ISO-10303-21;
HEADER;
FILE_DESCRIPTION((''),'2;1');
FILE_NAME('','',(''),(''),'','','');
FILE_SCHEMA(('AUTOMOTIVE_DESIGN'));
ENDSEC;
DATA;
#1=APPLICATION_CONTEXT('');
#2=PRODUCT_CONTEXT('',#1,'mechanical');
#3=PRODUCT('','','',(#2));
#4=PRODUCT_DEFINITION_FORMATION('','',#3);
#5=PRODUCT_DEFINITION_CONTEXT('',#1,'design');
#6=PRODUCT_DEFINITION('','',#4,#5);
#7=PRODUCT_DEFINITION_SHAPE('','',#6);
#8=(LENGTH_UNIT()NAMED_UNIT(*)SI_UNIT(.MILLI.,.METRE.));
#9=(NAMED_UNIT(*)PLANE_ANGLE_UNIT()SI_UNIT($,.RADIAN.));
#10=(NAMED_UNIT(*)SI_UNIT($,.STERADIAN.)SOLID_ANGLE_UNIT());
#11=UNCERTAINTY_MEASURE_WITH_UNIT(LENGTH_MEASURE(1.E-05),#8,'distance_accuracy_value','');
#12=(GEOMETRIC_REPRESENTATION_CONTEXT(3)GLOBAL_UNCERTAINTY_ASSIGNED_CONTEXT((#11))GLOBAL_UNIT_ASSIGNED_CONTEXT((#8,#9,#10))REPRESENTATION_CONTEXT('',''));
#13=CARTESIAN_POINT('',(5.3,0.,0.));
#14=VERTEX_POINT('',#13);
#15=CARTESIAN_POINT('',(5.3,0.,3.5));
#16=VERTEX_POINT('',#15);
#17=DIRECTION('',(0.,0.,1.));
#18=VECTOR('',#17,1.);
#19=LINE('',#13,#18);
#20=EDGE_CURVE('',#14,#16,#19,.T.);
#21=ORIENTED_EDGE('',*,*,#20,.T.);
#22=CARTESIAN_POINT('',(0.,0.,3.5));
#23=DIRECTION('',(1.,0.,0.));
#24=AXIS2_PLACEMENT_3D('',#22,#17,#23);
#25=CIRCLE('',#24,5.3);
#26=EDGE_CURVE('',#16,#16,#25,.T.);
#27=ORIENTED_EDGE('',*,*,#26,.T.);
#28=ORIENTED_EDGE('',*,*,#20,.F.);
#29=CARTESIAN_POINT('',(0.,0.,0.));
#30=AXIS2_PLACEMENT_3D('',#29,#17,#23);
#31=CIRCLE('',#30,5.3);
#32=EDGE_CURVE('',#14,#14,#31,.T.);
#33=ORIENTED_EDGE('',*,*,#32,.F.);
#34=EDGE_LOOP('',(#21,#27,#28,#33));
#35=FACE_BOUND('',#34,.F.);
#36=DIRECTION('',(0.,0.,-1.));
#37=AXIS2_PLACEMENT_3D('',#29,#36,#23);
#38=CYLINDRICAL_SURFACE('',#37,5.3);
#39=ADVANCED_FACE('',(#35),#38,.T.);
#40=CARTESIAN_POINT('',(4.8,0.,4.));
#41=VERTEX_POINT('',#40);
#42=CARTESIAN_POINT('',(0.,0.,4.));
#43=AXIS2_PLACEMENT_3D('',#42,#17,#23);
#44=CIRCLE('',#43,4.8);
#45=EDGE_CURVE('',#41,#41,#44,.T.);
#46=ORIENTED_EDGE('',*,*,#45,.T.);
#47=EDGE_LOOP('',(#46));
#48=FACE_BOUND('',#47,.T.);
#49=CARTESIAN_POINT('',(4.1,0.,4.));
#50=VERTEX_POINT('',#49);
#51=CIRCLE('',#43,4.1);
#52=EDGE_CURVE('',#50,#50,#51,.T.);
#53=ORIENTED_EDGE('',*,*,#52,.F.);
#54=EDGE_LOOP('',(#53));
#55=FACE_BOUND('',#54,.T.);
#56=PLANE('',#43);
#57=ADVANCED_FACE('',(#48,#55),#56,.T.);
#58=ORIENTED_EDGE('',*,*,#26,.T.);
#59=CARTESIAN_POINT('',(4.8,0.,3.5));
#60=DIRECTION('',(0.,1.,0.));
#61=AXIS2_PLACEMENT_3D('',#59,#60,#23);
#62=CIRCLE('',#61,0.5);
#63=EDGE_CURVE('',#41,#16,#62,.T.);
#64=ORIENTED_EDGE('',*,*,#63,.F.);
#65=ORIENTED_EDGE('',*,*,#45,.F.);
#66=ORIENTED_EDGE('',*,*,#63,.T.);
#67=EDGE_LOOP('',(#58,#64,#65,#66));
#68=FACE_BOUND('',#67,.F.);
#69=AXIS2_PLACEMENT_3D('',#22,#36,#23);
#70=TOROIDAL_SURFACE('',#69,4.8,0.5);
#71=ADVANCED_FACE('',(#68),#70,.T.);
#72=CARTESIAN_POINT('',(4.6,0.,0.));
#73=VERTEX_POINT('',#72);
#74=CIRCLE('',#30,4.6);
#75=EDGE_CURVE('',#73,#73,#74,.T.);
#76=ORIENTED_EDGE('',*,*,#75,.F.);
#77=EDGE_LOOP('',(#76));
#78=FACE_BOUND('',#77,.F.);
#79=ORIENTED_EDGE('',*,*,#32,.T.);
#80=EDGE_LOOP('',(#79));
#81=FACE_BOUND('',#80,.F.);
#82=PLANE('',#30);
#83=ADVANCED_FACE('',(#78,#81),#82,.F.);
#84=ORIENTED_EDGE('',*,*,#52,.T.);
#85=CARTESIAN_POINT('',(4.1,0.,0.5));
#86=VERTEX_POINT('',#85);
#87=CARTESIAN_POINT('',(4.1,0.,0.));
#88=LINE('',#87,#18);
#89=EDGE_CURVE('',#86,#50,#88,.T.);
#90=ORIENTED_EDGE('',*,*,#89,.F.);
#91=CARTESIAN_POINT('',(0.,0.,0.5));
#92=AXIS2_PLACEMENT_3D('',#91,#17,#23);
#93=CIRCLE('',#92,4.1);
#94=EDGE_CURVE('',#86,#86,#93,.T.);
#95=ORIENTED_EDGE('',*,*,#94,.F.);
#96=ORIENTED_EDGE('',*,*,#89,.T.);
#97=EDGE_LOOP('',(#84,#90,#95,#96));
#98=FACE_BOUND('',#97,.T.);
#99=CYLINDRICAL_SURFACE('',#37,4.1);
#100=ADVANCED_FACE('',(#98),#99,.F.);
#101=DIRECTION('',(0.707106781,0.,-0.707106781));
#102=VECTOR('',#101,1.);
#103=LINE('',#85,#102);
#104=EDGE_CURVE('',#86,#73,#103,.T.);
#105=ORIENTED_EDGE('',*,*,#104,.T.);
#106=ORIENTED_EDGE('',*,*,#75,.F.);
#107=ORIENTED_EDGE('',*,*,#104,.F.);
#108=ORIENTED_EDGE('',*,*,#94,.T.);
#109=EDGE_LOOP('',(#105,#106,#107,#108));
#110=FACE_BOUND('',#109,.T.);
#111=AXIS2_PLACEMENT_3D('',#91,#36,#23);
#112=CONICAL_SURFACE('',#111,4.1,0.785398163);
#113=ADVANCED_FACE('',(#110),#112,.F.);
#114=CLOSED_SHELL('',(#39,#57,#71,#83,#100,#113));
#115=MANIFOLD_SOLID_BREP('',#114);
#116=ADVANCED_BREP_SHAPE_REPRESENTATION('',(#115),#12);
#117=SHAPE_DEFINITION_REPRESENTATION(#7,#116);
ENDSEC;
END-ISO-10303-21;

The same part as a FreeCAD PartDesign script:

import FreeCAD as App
import Part
import Sketcher
Q = App.Units.Quantity


def edges_at(feature, points):
    """Names of the edges that pass closest to the given points."""
    edges = feature.Shape.Edges
    near = lambda p: min(range(len(edges)), key=lambda i: edges[i].distToShape(Part.Vertex(*p))[0])
    return sorted({f"Edge{near(p) + 1}" for p in points})

doc = App.newDocument("Part")
body = doc.addObject("PartDesign::Body", "Body")

sketch1 = body.newObject("Sketcher::SketchObject", "Sketch")
sketch1.AttachmentSupport = (doc.getObject("XY_Plane"), [""])
sketch1.MapMode = "FlatFace"
sketch1.addGeometry([
    Part.Circle(App.Vector(0, 0, 0), App.Vector(0, 0, 1), 5.3),
    Part.Circle(App.Vector(0, 0, 0), App.Vector(0, 0, 1), 4.1),
], False)
sketch1.addConstraint([
    Sketcher.Constraint("Coincident", 0, 3, -1, 1),
    Sketcher.Constraint("Coincident", 1, 3, -1, 1),
    Sketcher.Constraint("Diameter", 0, Q("10.6 mm")),
    Sketcher.Constraint("Diameter", 1, Q("8.2 mm")),
])
pad1 = body.newObject("PartDesign::Pad", "Pad")
pad1.Profile = sketch1
pad1.Length = 4
doc.recompute()

chamfer = body.newObject("PartDesign::Chamfer", "Chamfer")
chamfer.Base = (pad1, edges_at(pad1, [(-4.1, 0, 0)]))
chamfer.Size = 0.5
doc.recompute()

fillet = body.newObject("PartDesign::Fillet", "Fillet")
fillet.Base = (chamfer, edges_at(chamfer, [(-5.3, 0, 4)]))
fillet.Radius = 0.5

doc.recompute()
